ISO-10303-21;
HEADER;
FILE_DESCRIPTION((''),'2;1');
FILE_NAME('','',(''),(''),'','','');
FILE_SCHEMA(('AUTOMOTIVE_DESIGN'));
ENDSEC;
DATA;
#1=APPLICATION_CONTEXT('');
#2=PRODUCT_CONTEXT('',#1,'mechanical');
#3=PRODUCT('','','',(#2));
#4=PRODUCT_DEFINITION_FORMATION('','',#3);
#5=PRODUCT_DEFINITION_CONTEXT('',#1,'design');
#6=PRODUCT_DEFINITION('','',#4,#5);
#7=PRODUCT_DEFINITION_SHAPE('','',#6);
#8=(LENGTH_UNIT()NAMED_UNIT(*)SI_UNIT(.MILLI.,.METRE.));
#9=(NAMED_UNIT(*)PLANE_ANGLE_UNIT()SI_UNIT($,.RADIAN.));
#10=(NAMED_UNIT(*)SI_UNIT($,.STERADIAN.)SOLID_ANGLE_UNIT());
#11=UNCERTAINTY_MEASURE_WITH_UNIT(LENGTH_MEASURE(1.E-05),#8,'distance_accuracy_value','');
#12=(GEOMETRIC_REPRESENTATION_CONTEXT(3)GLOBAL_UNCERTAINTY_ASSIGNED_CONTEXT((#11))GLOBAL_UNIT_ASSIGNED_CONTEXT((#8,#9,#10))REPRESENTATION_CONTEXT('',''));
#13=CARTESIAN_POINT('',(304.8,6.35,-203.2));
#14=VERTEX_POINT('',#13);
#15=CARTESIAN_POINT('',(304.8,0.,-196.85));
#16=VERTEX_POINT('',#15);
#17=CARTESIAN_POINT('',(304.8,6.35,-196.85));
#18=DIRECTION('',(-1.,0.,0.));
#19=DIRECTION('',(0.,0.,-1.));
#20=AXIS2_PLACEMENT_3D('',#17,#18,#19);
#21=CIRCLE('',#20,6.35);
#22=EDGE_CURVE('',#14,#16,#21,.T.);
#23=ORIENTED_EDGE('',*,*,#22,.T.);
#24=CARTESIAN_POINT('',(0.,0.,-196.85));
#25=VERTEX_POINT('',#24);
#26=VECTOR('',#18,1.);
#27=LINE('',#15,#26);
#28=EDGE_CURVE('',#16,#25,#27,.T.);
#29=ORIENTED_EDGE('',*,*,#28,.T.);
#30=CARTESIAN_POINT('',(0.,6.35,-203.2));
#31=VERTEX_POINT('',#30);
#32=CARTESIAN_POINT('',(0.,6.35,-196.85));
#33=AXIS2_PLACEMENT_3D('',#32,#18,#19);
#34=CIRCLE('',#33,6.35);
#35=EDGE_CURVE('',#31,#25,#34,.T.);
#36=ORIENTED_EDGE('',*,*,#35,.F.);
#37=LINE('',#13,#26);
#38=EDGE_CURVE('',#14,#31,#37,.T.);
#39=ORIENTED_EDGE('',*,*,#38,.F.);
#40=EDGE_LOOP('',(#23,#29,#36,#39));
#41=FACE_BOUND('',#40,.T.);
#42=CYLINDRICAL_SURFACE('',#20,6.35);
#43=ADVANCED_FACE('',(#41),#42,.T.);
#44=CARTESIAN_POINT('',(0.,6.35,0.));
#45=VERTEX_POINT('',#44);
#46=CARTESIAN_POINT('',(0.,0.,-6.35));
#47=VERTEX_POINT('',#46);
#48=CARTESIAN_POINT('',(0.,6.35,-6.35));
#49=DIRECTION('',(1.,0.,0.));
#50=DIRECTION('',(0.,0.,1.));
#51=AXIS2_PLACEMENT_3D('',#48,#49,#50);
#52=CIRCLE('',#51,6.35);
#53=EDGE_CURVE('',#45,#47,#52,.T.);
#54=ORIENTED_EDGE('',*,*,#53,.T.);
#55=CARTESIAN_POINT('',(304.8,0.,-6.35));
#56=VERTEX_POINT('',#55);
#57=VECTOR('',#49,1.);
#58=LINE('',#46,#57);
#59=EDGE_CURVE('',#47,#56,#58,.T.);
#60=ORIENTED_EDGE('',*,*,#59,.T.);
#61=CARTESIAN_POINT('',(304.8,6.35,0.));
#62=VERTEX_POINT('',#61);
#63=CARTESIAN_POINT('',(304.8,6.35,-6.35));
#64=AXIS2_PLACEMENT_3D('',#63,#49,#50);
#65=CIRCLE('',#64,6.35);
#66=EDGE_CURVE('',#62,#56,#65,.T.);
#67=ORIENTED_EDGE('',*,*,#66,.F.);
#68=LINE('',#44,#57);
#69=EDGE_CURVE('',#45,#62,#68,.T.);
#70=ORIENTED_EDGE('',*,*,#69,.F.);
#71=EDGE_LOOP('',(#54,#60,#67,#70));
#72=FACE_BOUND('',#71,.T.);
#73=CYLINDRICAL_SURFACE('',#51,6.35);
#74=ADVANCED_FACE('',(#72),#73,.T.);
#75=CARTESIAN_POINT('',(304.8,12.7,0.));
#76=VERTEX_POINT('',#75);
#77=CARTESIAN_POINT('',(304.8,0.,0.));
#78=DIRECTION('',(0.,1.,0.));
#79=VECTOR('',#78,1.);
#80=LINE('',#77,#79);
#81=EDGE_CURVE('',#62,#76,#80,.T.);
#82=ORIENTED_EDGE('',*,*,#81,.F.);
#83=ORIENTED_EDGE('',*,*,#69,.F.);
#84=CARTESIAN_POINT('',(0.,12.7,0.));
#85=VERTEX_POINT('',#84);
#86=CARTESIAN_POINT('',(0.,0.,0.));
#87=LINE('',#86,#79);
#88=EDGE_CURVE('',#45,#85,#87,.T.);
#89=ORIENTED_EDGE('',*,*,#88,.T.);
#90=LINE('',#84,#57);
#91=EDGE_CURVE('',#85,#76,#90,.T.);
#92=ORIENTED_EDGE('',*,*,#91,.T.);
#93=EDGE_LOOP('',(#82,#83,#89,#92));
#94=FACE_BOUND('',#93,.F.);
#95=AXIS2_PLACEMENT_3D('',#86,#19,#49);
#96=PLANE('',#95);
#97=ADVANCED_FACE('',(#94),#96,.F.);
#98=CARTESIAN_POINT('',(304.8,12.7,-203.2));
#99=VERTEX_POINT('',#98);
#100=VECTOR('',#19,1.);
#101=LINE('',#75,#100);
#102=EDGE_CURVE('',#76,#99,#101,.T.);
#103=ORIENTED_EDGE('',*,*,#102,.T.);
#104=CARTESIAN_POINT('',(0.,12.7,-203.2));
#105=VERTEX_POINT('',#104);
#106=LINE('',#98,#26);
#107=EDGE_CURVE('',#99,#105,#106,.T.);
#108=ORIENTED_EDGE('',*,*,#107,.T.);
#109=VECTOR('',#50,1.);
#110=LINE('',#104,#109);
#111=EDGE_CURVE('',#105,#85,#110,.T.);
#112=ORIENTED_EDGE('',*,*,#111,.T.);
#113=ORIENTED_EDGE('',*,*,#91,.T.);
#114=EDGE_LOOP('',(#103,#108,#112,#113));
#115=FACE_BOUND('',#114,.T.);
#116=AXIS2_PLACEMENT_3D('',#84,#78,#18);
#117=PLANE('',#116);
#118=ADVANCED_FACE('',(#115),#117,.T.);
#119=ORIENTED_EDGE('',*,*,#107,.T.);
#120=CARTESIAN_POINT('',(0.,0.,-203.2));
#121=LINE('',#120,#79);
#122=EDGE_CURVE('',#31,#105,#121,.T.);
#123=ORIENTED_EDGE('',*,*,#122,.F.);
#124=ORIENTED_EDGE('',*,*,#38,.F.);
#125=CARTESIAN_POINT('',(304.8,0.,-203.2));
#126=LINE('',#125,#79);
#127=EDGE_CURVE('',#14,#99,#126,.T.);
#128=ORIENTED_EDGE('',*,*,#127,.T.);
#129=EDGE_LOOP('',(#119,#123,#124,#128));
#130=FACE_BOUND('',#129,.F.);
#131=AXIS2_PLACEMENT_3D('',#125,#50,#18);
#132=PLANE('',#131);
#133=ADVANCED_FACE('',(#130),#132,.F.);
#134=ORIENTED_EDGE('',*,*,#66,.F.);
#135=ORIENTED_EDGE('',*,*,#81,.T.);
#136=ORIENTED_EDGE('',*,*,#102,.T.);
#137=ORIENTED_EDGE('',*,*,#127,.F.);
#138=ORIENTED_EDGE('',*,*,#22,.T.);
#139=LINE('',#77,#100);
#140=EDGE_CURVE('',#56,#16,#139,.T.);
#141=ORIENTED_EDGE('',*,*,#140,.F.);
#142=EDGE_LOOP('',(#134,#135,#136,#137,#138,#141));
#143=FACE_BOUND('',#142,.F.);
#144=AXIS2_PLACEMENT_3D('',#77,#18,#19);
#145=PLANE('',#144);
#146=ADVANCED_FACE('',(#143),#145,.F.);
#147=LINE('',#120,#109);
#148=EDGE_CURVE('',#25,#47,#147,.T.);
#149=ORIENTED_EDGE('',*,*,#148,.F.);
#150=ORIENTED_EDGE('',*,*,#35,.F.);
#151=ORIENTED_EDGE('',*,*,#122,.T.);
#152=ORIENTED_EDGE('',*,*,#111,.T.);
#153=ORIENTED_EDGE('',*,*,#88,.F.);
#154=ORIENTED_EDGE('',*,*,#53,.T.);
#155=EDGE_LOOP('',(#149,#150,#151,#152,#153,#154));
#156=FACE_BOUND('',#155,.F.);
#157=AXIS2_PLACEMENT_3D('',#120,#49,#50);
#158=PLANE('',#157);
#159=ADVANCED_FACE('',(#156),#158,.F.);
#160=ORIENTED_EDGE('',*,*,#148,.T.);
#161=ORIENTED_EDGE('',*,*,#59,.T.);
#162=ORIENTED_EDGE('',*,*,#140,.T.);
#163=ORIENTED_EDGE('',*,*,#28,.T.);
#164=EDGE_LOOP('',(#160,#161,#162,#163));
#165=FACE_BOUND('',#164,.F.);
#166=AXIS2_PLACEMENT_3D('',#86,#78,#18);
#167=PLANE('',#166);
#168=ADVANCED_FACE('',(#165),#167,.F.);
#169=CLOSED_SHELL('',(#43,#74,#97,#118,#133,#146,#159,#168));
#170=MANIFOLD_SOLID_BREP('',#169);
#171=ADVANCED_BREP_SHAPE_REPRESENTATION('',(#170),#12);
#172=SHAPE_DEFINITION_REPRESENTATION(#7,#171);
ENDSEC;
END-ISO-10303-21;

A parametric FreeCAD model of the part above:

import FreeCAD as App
import Part
import Sketcher

V = App.Vector
Q = App.Units.Quantity


def edges_at(feature, points):
    """Names of the edges that pass closest to the given points."""
    edges = feature.Shape.Edges
    near = lambda p: min(range(len(edges)), key=lambda i: edges[i].distToShape(Part.Vertex(*p))[0])
    return sorted({f"Edge{near(p) + 1}" for p in points})


def add_polygon(sketch, points):
    """Adds a closed chain of lines whose ends are joined by coincident constraints."""
    first, n = sketch.GeometryCount, len(points)
    for a, b in zip(points, points[1:] + points[:1]):
        sketch.addGeometry(Part.LineSegment(App.Vector(*a, 0), App.Vector(*b, 0)), False)
    for i in range(n):
        sketch.addConstraint(Sketcher.Constraint("Coincident", first + i, 2, first + (i + 1) % n, 1))

doc = App.newDocument("Part")
params = doc.addObject("Spreadsheet::Sheet", "Params")
for row, (alias, value) in enumerate([
    ("sketch1_width", "12 in"),
    ("sketch1_height", "8 in"),
    ("pad1_length", "0.5 in"),
    ("fillet_radius", "0.25 in"),
], start=1):
    params.set(f"A{row}", alias)
    params.set(f"B{row}", "=" + value)
    params.setAlias(f"B{row}", alias)

body = doc.addObject("PartDesign::Body", "Body")

# Sketch on XZ plane
sketch1 = doc.addObject("Sketcher::SketchObject", "Sketch")
body.addObject(sketch1)
sketch1.AttachmentSupport = (doc.XZ_Plane, [""])
sketch1.MapMode = "FlatFace"
add_polygon(sketch1, [(0, -203), (0, 0), (305, 0), (305, -203)])  # lines 0-3
sketch1.addConstraint(Sketcher.Constraint("Vertical", 0))
sketch1.addConstraint(Sketcher.Constraint("Horizontal", 1))
sketch1.addConstraint(Sketcher.Constraint("Vertical", 2))
sketch1.addConstraint(Sketcher.Constraint("Horizontal", 3))
sketch1.addConstraint(Sketcher.Constraint("Coincident", 0, 2, -1, 1))
sketch1.addConstraint(Sketcher.Constraint("DistanceX", 1, 1, 1, 2, Q("12 in")))
sketch1.addConstraint(Sketcher.Constraint("DistanceY", 0, 1, 0, 2, Q("8 in")))
sketch1.setExpression("Constraints[9]", "Params.sketch1_width")
sketch1.setExpression("Constraints[10]", "Params.sketch1_height")
pad1 = doc.addObject("PartDesign::Pad", "Pad")
body.addObject(pad1)
pad1.Profile = sketch1
pad1.setExpression("Length", "Params.pad1_length")
pad1.Reversed = True
doc.recompute()

fillet = doc.addObject("PartDesign::Fillet", "Fillet")
body.addObject(fillet)
fillet.Base = (pad1, edges_at(pad1, [(152.4, 0, 0), (152.4, 0, -203.2)]))
fillet.setExpression("Radius", "Params.fillet_radius")

doc.recompute()
